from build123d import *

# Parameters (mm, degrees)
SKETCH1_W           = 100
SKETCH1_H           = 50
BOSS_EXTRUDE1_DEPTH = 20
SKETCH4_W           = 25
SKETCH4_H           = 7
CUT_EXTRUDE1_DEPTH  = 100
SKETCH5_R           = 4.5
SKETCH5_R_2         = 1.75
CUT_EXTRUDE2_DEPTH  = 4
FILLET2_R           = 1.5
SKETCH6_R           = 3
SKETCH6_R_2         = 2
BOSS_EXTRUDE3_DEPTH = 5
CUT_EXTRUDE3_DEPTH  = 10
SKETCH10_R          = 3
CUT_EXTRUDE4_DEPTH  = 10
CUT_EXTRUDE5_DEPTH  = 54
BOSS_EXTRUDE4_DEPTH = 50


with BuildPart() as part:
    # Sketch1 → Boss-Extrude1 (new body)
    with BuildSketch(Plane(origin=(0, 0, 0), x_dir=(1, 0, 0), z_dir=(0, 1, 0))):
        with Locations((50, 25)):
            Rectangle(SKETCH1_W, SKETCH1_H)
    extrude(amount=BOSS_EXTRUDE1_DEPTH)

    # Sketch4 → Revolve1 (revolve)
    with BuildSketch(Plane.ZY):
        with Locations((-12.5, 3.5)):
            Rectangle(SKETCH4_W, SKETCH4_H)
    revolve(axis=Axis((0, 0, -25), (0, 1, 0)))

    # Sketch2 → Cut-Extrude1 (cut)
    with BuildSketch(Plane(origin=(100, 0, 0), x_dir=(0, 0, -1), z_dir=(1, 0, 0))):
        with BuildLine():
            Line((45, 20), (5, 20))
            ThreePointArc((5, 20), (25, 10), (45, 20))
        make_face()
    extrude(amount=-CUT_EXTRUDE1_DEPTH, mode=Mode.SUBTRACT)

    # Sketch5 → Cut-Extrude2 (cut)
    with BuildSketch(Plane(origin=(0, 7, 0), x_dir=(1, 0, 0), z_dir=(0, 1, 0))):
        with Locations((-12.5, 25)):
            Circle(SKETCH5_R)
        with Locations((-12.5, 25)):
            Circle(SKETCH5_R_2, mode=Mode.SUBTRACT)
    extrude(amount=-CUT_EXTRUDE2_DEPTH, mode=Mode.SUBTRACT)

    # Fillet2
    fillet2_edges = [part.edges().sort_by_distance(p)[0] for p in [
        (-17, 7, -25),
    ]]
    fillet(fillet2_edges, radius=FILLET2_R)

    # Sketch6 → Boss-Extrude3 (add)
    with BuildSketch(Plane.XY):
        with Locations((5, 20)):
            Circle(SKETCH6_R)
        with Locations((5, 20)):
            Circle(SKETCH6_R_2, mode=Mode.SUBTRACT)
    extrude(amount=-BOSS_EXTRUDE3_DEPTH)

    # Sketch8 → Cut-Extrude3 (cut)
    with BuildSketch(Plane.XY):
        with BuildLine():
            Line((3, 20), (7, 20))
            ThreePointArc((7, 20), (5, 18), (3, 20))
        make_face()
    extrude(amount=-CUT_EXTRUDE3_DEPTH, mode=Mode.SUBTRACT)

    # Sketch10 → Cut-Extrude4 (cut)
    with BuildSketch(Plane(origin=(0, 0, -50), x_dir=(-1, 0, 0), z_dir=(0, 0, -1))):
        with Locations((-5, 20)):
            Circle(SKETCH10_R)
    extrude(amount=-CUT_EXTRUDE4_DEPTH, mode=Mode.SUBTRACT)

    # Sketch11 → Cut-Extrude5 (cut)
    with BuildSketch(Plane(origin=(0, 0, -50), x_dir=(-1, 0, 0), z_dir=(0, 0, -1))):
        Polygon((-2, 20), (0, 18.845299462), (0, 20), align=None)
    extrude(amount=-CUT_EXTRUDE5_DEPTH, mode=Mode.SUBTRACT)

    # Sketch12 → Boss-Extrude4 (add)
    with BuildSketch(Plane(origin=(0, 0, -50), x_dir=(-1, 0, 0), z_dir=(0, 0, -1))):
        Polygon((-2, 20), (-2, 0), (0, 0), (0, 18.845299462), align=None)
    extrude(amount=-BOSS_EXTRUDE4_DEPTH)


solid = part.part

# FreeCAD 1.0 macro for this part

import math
import FreeCAD as App
import Part
import Sketcher
Q = App.Units.Quantity


def edges_at(feature, points):
    """Names of the edges that pass closest to the given points."""
    edges = feature.Shape.Edges
    near = lambda p: min(range(len(edges)), key=lambda i: edges[i].distToShape(Part.Vertex(*p))[0])
    return sorted({f"Edge{near(p) + 1}" for p in points})

doc = App.newDocument("Part")
params = doc.addObject("Spreadsheet::Sheet", "Params")
for row, (alias, value) in enumerate([
    ("sketch1_width", "100 mm"),
    ("sketch1_height", "50 mm"),
    ("pad1_length", "20 mm"),
    ("sketch2_width", "7 mm"),
    ("sketch2_height", "25 mm"),
    ("revolution_angle", "360 deg"),
    ("sketch3_radius", "25 mm"),
    ("sketch3_height", "40 mm"),
    ("pocket1_length", "100 mm"),
    ("sketch4_diameter", "9 mm"),
    ("sketch4_diameter2", "3.5 mm"),
    ("pocket2_length", "4 mm"),
    ("fillet_radius", "1.5 mm"),
    ("sketch5_diameter", "6 mm"),
    ("sketch5_diameter2", "4 mm"),
    ("pad2_length", "5 mm"),
    ("sketch6_radius", "2 mm"),
    ("pocket3_length", "10 mm"),
    ("sketch7_diameter", "6 mm"),
    ("pocket4_length", "10 mm"),
    ("sketch8_width", "2 mm"),
    ("pocket5_length", "54 mm"),
    ("sketch9_width", "2 mm"),
    ("sketch9_height", "20 mm"),
    ("pad3_length", "50 mm"),
], start=1):
    params.set(f"A{row}", alias)
    params.set(f"B{row}", "=" + value)
    params.setAlias(f"B{row}", alias)

body = doc.addObject("PartDesign::Body", "Body")

sketch1 = body.newObject("Sketcher::SketchObject", "Sketch")
sketch1.AttachmentSupport = (doc.getObject("XZ_Plane"), [""])
sketch1.MapMode = "FlatFace"
sketch1.addGeometry([
    Part.LineSegment(App.Vector(0, -50, 0), App.Vector(0, 0, 0)),
    Part.LineSegment(App.Vector(0, 0, 0), App.Vector(100, 0, 0)),
    Part.LineSegment(App.Vector(100, 0, 0), App.Vector(100, -50, 0)),
    Part.LineSegment(App.Vector(100, -50, 0), App.Vector(0, -50, 0)),
], False)
sketch1.addConstraint([
    Sketcher.Constraint("Coincident", 0, 2, 1, 1),
    Sketcher.Constraint("Coincident", 1, 2, 2, 1),
    Sketcher.Constraint("Coincident", 2, 2, 3, 1),
    Sketcher.Constraint("Coincident", 3, 2, 0, 1),
    Sketcher.Constraint("Vertical", 0),
    Sketcher.Constraint("Horizontal", 1),
    Sketcher.Constraint("Vertical", 2),
    Sketcher.Constraint("Horizontal", 3),
    Sketcher.Constraint("Coincident", 0, 2, -1, 1),
    Sketcher.Constraint("DistanceX", 1, 1, 1, 2, Q("100 mm")),
    Sketcher.Constraint("DistanceY", 0, 1, 0, 2, Q("50 mm")),
])
sketch1.setExpression("Constraints[9]", "Params.sketch1_width")
sketch1.setExpression("Constraints[10]", "Params.sketch1_height")
pad1 = body.newObject("PartDesign::Pad", "Pad")
pad1.Profile = sketch1
pad1.setExpression("Length", "Params.pad1_length")
pad1.Reversed = True

sketch2 = body.newObject("Sketcher::SketchObject", "Sketch001")
sketch2.AttachmentSupport = (doc.getObject("YZ_Plane"), [""])
sketch2.MapMode = "FlatFace"
sketch2.addGeometry([
    Part.LineSegment(App.Vector(7, -25, 0), App.Vector(0, -25, 0)),
    Part.LineSegment(App.Vector(0, -25, 0), App.Vector(0, 0, 0)),
    Part.LineSegment(App.Vector(0, 0, 0), App.Vector(7, 0, 0)),
    Part.LineSegment(App.Vector(7, 0, 0), App.Vector(7, -25, 0)),
], False)
sketch2.addGeometry(Part.LineSegment(App.Vector(0, -25, 0), App.Vector(7, -25, 0)), True)
sketch2.addConstraint([
    Sketcher.Constraint("Coincident", 0, 2, 1, 1),
    Sketcher.Constraint("Coincident", 1, 2, 2, 1),
    Sketcher.Constraint("Coincident", 2, 2, 3, 1),
    Sketcher.Constraint("Coincident", 3, 2, 0, 1),
    Sketcher.Constraint("Horizontal", 0),
    Sketcher.Constraint("Vertical", 1),
    Sketcher.Constraint("Horizontal", 2),
    Sketcher.Constraint("Vertical", 3),
    Sketcher.Constraint("Horizontal", 4),
    Sketcher.Constraint("Coincident", 1, 2, -1, 1),
    Sketcher.Constraint("Coincident", 4, 1, 0, 2),
    Sketcher.Constraint("Vertical", 2, 2, 4, 2),
    Sketcher.Constraint("DistanceX", 0, 2, 0, 1, Q("7 mm")),
    Sketcher.Constraint("DistanceY", 1, 1, 1, 2, Q("25 mm")),
])
sketch2.setExpression("Constraints[12]", "Params.sketch2_width")
sketch2.setExpression("Constraints[13]", "Params.sketch2_height")
revolution = body.newObject("PartDesign::Revolution", "Revolution")
revolution.Profile = sketch2
revolution.ReferenceAxis = (sketch2, ["Axis0"])
revolution.setExpression("Angle", "Params.revolution_angle")

sketch3 = body.newObject("Sketcher::SketchObject", "Sketch002")
sketch3.AttachmentSupport = (doc.getObject("YZ_Plane"), [""])
sketch3.MapMode = "FlatFace"
sketch3.AttachmentOffset = App.Placement(App.Vector(0, 0, 100), App.Rotation())
sketch3.addGeometry([
    Part.LineSegment(App.Vector(20, -45, 0), App.Vector(20, -5, 0)),
    Part.ArcOfCircle(Part.Circle(App.Vector(35, -25, 0), App.Vector(0, 0, 1), 25), math.radians(127), math.radians(233)),
], False)
sketch3.addConstraint([
    Sketcher.Constraint("Coincident", 0, 1, 1, 2),
    Sketcher.Constraint("Coincident", 1, 1, 0, 2),
    Sketcher.Constraint("Vertical", 0),
    Sketcher.Constraint("Radius", 1, Q("25 mm")),
    Sketcher.Constraint("DistanceY", 0, 1, 0, 2, Q("40 mm")),
    Sketcher.Constraint("DistanceX", -1, 1, 1, 3, Q("35 mm")),
    Sketcher.Constraint("DistanceY", 1, 3, -1, 1, Q("25 mm")),
])
sketch3.setExpression("Constraints[3]", "Params.sketch3_radius")
sketch3.setExpression("Constraints[4]", "Params.sketch3_height")
pocket1 = body.newObject("PartDesign::Pocket", "Pocket")
pocket1.Profile = sketch3
pocket1.setExpression("Length", "Params.pocket1_length")

sketch4 = body.newObject("Sketcher::SketchObject", "Sketch003")
sketch4.AttachmentSupport = (doc.getObject("XZ_Plane"), [""])
sketch4.MapMode = "FlatFace"
sketch4.AttachmentOffset = App.Placement(App.Vector(0, 0, -7), App.Rotation())
sketch4.addGeometry([
    Part.Circle(App.Vector(-12.5, -25, 0), App.Vector(0, 0, 1), 4.5),
    Part.Circle(App.Vector(-12.5, -25, 0), App.Vector(0, 0, 1), 1.8),
], False)
sketch4.addConstraint([
    Sketcher.Constraint("Coincident", 1, 3, 0, 3),
    Sketcher.Constraint("Diameter", 0, Q("9 mm")),
    Sketcher.Constraint("Diameter", 1, Q("3.5 mm")),
    Sketcher.Constraint("DistanceY", 0, 3, -1, 1, Q("25 mm")),
    Sketcher.Constraint("DistanceX", 0, 3, -1, 1, Q("12.5 mm")),
])
sketch4.setExpression("Constraints[1]", "Params.sketch4_diameter")
sketch4.setExpression("Constraints[2]", "Params.sketch4_diameter2")
pocket2 = body.newObject("PartDesign::Pocket", "Pocket001")
pocket2.Profile = sketch4
pocket2.setExpression("Length", "Params.pocket2_length")
pocket2.Reversed = True
doc.recompute()

fillet = body.newObject("PartDesign::Fillet", "Fillet")
fillet.Base = (pocket2, edges_at(pocket2, [(-17, 7, -25)]))
fillet.setExpression("Radius", "Params.fillet_radius")

sketch5 = body.newObject("Sketcher::SketchObject", "Sketch004")
sketch5.AttachmentSupport = (doc.getObject("XY_Plane"), [""])
sketch5.MapMode = "FlatFace"
sketch5.addGeometry([
    Part.Circle(App.Vector(5, 20, 0), App.Vector(0, 0, 1), 3),
    Part.Circle(App.Vector(5, 20, 0), App.Vector(0, 0, 1), 2),
], False)
sketch5.addConstraint([
    Sketcher.Constraint("Coincident", 1, 3, 0, 3),
    Sketcher.Constraint("Diameter", 0, Q("6 mm")),
    Sketcher.Constraint("Diameter", 1, Q("4 mm")),
    Sketcher.Constraint("DistanceX", -1, 1, 0, 3, Q("5 mm")),
    Sketcher.Constraint("DistanceY", -1, 1, 0, 3, Q("20 mm")),
])
sketch5.setExpression("Constraints[1]", "Params.sketch5_diameter")
sketch5.setExpression("Constraints[2]", "Params.sketch5_diameter2")
pad2 = body.newObject("PartDesign::Pad", "Pad001")
pad2.Profile = sketch5
pad2.setExpression("Length", "Params.pad2_length")
pad2.Reversed = True

sketch6 = body.newObject("Sketcher::SketchObject", "Sketch005")
sketch6.AttachmentSupport = (doc.getObject("XY_Plane"), [""])
sketch6.MapMode = "FlatFace"
sketch6.addGeometry([
    Part.LineSegment(App.Vector(7, 20, 0), App.Vector(3, 20, 0)),
    Part.ArcOfCircle(Part.Circle(App.Vector(5, 20, 0), App.Vector(0, 0, 1), 2), math.radians(180), math.radians(360)),
], False)
sketch6.addConstraint([
    Sketcher.Constraint("Coincident", 0, 1, 1, 2),
    Sketcher.Constraint("Coincident", 1, 1, 0, 2),
    Sketcher.Constraint("Horizontal", 0),
    Sketcher.Constraint("Horizontal", 1, 3, 0, 1),
    Sketcher.Constraint("Radius", 1, Q("2 mm")),
    Sketcher.Constraint("DistanceX", -1, 1, 1, 3, Q("5 mm")),
    Sketcher.Constraint("DistanceY", -1, 1, 1, 3, Q("20 mm")),
])
sketch6.setExpression("Constraints[4]", "Params.sketch6_radius")
pocket3 = body.newObject("PartDesign::Pocket", "Pocket002")
pocket3.Profile = sketch6
pocket3.setExpression("Length", "Params.pocket3_length")

sketch7 = body.newObject("Sketcher::SketchObject", "Sketch006")
sketch7.AttachmentSupport = (doc.getObject("XY_Plane"), [""])
sketch7.MapMode = "FlatFace"
sketch7.AttachmentOffset = App.Placement(App.Vector(0, 0, -50), App.Rotation())
sketch7.addGeometry(Part.Circle(App.Vector(5, 20, 0), App.Vector(0, 0, 1), 3), False)
sketch7.addConstraint([
    Sketcher.Constraint("Diameter", 0, Q("6 mm")),
    Sketcher.Constraint("DistanceX", -1, 1, 0, 3, Q("5 mm")),
    Sketcher.Constraint("DistanceY", -1, 1, 0, 3, Q("20 mm")),
])
sketch7.setExpression("Constraints[0]", "Params.sketch7_diameter")
pocket4 = body.newObject("PartDesign::Pocket", "Pocket003")
pocket4.Profile = sketch7
pocket4.setExpression("Length", "Params.pocket4_length")
pocket4.Reversed = True

sketch8 = body.newObject("Sketcher::SketchObject", "Sketch007")
sketch8.AttachmentSupport = (doc.getObject("XY_Plane"), [""])
sketch8.MapMode = "FlatFace"
sketch8.AttachmentOffset = App.Placement(App.Vector(0, 0, -50), App.Rotation())
sketch8.addGeometry([
    Part.LineSegment(App.Vector(2, 20, 0), App.Vector(0, 18.8, 0)),
    Part.LineSegment(App.Vector(0, 18.8, 0), App.Vector(0, 20, 0)),
    Part.LineSegment(App.Vector(0, 20, 0), App.Vector(2, 20, 0)),
], False)
sketch8.addConstraint([
    Sketcher.Constraint("Coincident", 0, 2, 1, 1),
    Sketcher.Constraint("Coincident", 1, 2, 2, 1),
    Sketcher.Constraint("Coincident", 2, 2, 0, 1),
    Sketcher.Constraint("Vertical", 1),
    Sketcher.Constraint("Horizontal", 2),
    Sketcher.Constraint("PointOnObject", 0, 2, -2),
    Sketcher.Constraint("DistanceX", 2, 1, 2, 2, Q("2 mm")),
    Sketcher.Constraint("Angle", 0, Q("-150 deg")),
    Sketcher.Constraint("DistanceY", -1, 1, 1, 2, Q("20 mm")),
])
sketch8.setExpression("Constraints[6]", "Params.sketch8_width")
pocket5 = body.newObject("PartDesign::Pocket", "Pocket004")
pocket5.Profile = sketch8
pocket5.setExpression("Length", "Params.pocket5_length")
pocket5.Reversed = True

sketch9 = body.newObject("Sketcher::SketchObject", "Sketch008")
sketch9.AttachmentSupport = (doc.getObject("XY_Plane"), [""])
sketch9.MapMode = "FlatFace"
sketch9.AttachmentOffset = App.Placement(App.Vector(0, 0, -50), App.Rotation())
sketch9.addGeometry([
    Part.LineSegment(App.Vector(2, 20, 0), App.Vector(2, 0, 0)),
    Part.LineSegment(App.Vector(2, 0, 0), App.Vector(0, 0, 0)),
    Part.LineSegment(App.Vector(0, 0, 0), App.Vector(0, 18.8, 0)),
    Part.LineSegment(App.Vector(0, 18.8, 0), App.Vector(2, 20, 0)),
], False)
sketch9.addConstraint([
    Sketcher.Constraint("Coincident", 0, 2, 1, 1),
    Sketcher.Constraint("Coincident", 1, 2, 2, 1),
    Sketcher.Constraint("Coincident", 2, 2, 3, 1),
    Sketcher.Constraint("Coincident", 3, 2, 0, 1),
    Sketcher.Constraint("Vertical", 0),
    Sketcher.Constraint("Horizontal", 1),
    Sketcher.Constraint("Vertical", 2),
    Sketcher.Constraint("Coincident", 1, 2, -1, 1),
    Sketcher.Constraint("DistanceX", 1, 2, 1, 1, Q("2 mm")),
    Sketcher.Constraint("DistanceY", 0, 2, 0, 1, Q("20 mm")),
    Sketcher.Constraint("Angle", 3, Q("30 deg")),
])
sketch9.setExpression("Constraints[8]", "Params.sketch9_width")
sketch9.setExpression("Constraints[9]", "Params.sketch9_height")
pad3 = body.newObject("PartDesign::Pad", "Pad002")
pad3.Profile = sketch9
pad3.setExpression("Length", "Params.pad3_length")

doc.recompute()
